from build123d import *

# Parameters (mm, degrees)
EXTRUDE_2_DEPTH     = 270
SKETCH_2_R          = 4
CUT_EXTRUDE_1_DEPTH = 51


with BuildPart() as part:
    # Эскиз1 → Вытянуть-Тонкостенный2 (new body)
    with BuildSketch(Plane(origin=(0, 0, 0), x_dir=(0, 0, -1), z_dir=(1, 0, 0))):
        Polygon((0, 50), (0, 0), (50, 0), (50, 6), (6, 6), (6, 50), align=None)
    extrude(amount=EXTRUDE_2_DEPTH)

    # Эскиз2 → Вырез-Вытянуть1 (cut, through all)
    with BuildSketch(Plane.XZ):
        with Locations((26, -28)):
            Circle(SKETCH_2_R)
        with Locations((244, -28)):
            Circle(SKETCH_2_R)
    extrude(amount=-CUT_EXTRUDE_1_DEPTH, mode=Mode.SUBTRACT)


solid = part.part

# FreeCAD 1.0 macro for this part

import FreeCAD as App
import Part
import Sketcher

V = App.Vector


def add_polygon(sketch, points):
    """Adds a closed chain of lines whose ends are joined by coincident constraints."""
    first, n = sketch.GeometryCount, len(points)
    for a, b in zip(points, points[1:] + points[:1]):
        sketch.addGeometry(Part.LineSegment(App.Vector(*a, 0), App.Vector(*b, 0)), False)
    for i in range(n):
        sketch.addConstraint(Sketcher.Constraint("Coincident", first + i, 2, first + (i + 1) % n, 1))

doc = App.newDocument("Part")
params = doc.addObject("Spreadsheet::Sheet", "Params")
for row, (alias, value) in enumerate([
    ("sketch1_width", "50 mm"),
    ("sketch1_width2", "6 mm"),
    ("pad1_length", "270 mm"),
    ("sketch2_diameter", "8 mm"),
], start=1):
    params.set(f"A{row}", alias)
    params.set(f"B{row}", "=" + value)
    params.setAlias(f"B{row}", alias)

body = doc.addObject("PartDesign::Body", "Body")

# Sketch on YZ plane
sketch1 = body.newObject("Sketcher::SketchObject", "Sketch")
sketch1.AttachmentSupport = (doc.getObject("YZ_Plane"), [""])
sketch1.MapMode = "FlatFace"
add_polygon(sketch1, [(50, 0), (0, 0), (0, -50), (6, -50), (6, -6), (50, -6)])  # lines 0-5
sketch1.addConstraint(Sketcher.Constraint("Horizontal", 0))
sketch1.addConstraint(Sketcher.Constraint("Vertical", 1))
sketch1.addConstraint(Sketcher.Constraint("Horizontal", 2))
sketch1.addConstraint(Sketcher.Constraint("Vertical", 3))
sketch1.addConstraint(Sketcher.Constraint("Horizontal", 4))
sketch1.addConstraint(Sketcher.Constraint("Vertical", 5))
sketch1.addConstraint(Sketcher.Constraint("Coincident", 0, 2, -1, 1))
sketch1.addConstraint(Sketcher.Constraint("Equal", 0, 1))
sketch1.addConstraint(Sketcher.Constraint("Equal", 4, 3))
sketch1.addConstraint(Sketcher.Constraint("DistanceX", 0, 2, 0, 1, 50.0))
sketch1.addConstraint(Sketcher.Constraint("DistanceX", 2, 1, 2, 2, 6.0))
sketch1.setExpression("Constraints[15]", "Params.sketch1_width")
sketch1.setExpression("Constraints[16]", "Params.sketch1_width2")
pad1 = body.newObject("PartDesign::Pad", "Pad")
pad1.Profile = sketch1
pad1.setExpression("Length", "Params.pad1_length")

# Sketch on XZ plane
sketch2 = body.newObject("Sketcher::SketchObject", "Sketch001")
sketch2.AttachmentSupport = (doc.getObject("XZ_Plane"), [""])
sketch2.MapMode = "FlatFace"
sketch2.addGeometry(Part.Circle(V(26, -28, 0), V(0, 0, 1), 4), False)
sketch2.addGeometry(Part.Circle(V(244, -28, 0), V(0, 0, 1), 4), False)
sketch2.addConstraint(Sketcher.Constraint("Equal", 0, 1))
sketch2.addConstraint(Sketcher.Constraint("Horizontal", 0, 3, 1, 3))
sketch2.addConstraint(Sketcher.Constraint("Diameter", 0, 8.0))
sketch2.addConstraint(Sketcher.Constraint("DistanceX", -1, 1, 0, 3, 26.0))
sketch2.addConstraint(Sketcher.Constraint("DistanceY", 0, 3, -1, 1, 28.0))
sketch2.addConstraint(Sketcher.Constraint("DistanceX", -1, 1, 1, 3, 244.0))
sketch2.setExpression("Constraints[2]", "Params.sketch2_diameter")
pocket1 = body.newObject("PartDesign::Pocket", "Pocket")
pocket1.Profile = sketch2
pocket1.Type = "ThroughAll"

doc.recompute()
